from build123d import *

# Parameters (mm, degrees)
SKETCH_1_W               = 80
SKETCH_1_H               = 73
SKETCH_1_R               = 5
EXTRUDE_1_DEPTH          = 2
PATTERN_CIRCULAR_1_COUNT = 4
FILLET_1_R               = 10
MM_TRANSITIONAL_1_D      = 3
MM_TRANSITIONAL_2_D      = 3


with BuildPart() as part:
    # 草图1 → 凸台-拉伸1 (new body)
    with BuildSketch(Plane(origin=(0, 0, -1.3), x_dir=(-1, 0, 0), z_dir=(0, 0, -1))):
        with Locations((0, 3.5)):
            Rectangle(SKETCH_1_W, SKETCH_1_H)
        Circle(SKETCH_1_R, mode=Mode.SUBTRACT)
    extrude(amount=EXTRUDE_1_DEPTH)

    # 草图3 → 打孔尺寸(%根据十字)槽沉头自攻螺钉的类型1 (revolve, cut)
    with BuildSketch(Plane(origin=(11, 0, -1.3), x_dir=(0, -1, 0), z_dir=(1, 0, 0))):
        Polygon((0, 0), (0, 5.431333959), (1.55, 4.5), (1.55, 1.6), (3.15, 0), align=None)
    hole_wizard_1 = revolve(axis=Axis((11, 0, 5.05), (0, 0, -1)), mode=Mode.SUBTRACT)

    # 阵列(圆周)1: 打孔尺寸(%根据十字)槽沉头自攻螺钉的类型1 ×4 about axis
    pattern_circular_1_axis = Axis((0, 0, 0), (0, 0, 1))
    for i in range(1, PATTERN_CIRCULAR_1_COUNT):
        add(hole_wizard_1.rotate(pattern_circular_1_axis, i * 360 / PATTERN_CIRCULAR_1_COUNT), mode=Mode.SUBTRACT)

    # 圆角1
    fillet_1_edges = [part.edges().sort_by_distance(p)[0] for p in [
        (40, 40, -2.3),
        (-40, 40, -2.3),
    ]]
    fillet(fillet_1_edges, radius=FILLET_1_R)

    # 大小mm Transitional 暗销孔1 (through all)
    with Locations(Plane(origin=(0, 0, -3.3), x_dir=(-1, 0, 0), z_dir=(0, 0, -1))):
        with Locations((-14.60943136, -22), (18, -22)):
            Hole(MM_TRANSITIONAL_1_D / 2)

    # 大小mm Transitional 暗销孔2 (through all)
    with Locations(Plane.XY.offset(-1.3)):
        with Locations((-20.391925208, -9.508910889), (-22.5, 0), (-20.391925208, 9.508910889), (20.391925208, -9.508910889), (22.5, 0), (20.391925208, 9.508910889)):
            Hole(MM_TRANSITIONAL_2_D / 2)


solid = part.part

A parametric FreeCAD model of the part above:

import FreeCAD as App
import Part
import Sketcher

V = App.Vector
Q = App.Units.Quantity


def edges_at(feature, points):
    """Names of the edges that pass closest to the given points."""
    edges = feature.Shape.Edges
    near = lambda p: min(range(len(edges)), key=lambda i: edges[i].distToShape(Part.Vertex(*p))[0])
    return sorted({f"Edge{near(p) + 1}" for p in points})


def add_polygon(sketch, points):
    """Adds a closed chain of lines whose ends are joined by coincident constraints."""
    first, n = sketch.GeometryCount, len(points)
    for a, b in zip(points, points[1:] + points[:1]):
        sketch.addGeometry(Part.LineSegment(App.Vector(*a, 0), App.Vector(*b, 0)), False)
    for i in range(n):
        sketch.addConstraint(Sketcher.Constraint("Coincident", first + i, 2, first + (i + 1) % n, 1))

doc = App.newDocument("Part")
body = doc.addObject("PartDesign::Body", "Body")

sketch1 = body.newObject("Sketcher::SketchObject", "Sketch")
sketch1.AttachmentSupport = (doc.getObject("XY_Plane"), [""])
sketch1.MapMode = "FlatFace"
sketch1.AttachmentOffset = App.Placement(V(0, 0, -1.3), App.Rotation())
add_polygon(sketch1, [(40, 40), (40, -33), (-40, -33), (-40, 40)])
sketch1.addGeometry(Part.Circle(V(0, 0, 0), V(0, 0, 1), 5), False)
sketch1.addConstraint([
    Sketcher.Constraint("Vertical", 0),
    Sketcher.Constraint("Horizontal", 1),
    Sketcher.Constraint("Vertical", 2),
    Sketcher.Constraint("Horizontal", 3),
    Sketcher.Constraint("Coincident", 4, 3, -1, 1),
    Sketcher.Constraint("Diameter", 4, 10.0),
    Sketcher.Constraint("DistanceX", 1, 2, 1, 1, 80.0),
    Sketcher.Constraint("DistanceY", 0, 2, 0, 1, 73.0),
    Sketcher.Constraint("DistanceX", -1, 1, 0, 2, 40.0),
    Sketcher.Constraint("DistanceY", 0, 2, -1, 1, 33.0),
])
pad1 = body.newObject("PartDesign::Pad", "Pad")
pad1.Profile = sketch1
pad1.Length = 2
pad1.Reversed = True

sketch2 = body.newObject("Sketcher::SketchObject", "Sketch001")
sketch2.AttachmentSupport = (doc.getObject("YZ_Plane"), [""])
sketch2.MapMode = "FlatFace"
sketch2.AttachmentOffset = App.Placement(V(0, 0, 11), App.Rotation())
add_polygon(sketch2, [(0, -6.731334), (0, -1.3), (-3.15, -1.3), (-1.55, -2.9), (-1.55, -5.8)])
sketch2.addConstraint([
    Sketcher.Constraint("Vertical", 0),
    Sketcher.Constraint("Horizontal", 1),
    Sketcher.Constraint("Vertical", 3),
    Sketcher.Constraint("PointOnObject", 0, 2, -2),
    Sketcher.Constraint("Angle", 2, Q("-45 deg")),
    Sketcher.Constraint("Angle", 4, Q("-31 deg")),
    Sketcher.Constraint("DistanceY", 3, 2, 3, 1, 2.9),
    Sketcher.Constraint("DistanceX", 1, 2, 1, 1, 3.15),
    Sketcher.Constraint("DistanceY", 0, 2, -1, 1, 1.3),
    Sketcher.Constraint("DistanceY", 2, 2, -1, 1, 2.9),
])
groove = body.newObject("PartDesign::Groove", "Groove")
groove.Profile = sketch2
groove.ReferenceAxis = (sketch2, ["V_Axis"])
groove.Angle = 360
doc.recompute()

polarpattern = body.newObject("PartDesign::PolarPattern", "PolarPattern")
polarpattern.Originals = [groove]
polarpattern.Axis = (doc.getObject("Z_Axis"), [""])
polarpattern.Angle = 360
polarpattern.Occurrences = 4
body.Tip = polarpattern
doc.recompute()

fillet = body.newObject("PartDesign::Fillet", "Fillet")
fillet.Base = (polarpattern, edges_at(polarpattern, [(40, 40, -2.3), (-40, 40, -2.3)]))
fillet.Radius = 10

sketch3 = body.newObject("Sketcher::SketchObject", "Sketch002")
sketch3.AttachmentSupport = (doc.getObject("XY_Plane"), [""])
sketch3.MapMode = "FlatFace"
sketch3.AttachmentOffset = App.Placement(V(0, 0, -3.3), App.Rotation())
sketch3.addGeometry([
    Part.Circle(V(14.609431, -22, 0), V(0, 0, 1), 1.5),
    Part.Circle(V(-18, -22, 0), V(0, 0, 1), 1.5),
], False)
sketch3.addConstraint([
    Sketcher.Constraint("Equal", 0, 1),
    Sketcher.Constraint("Horizontal", 0, 3, 1, 3),
    Sketcher.Constraint("Diameter", 0, 3.0),
    Sketcher.Constraint("DistanceY", 0, 3, -1, 1, 22.0),
    Sketcher.Constraint("DistanceX", 1, 3, -1, 1, 18.0),
    Sketcher.Constraint("DistanceX", -1, 1, 0, 3, 14.609431),
])
doc.recompute()
hole = body.newObject("PartDesign::Hole", "Hole")
hole.Profile = sketch3
hole.ThreadType = "None"
hole.Diameter = 3
hole.DepthType = "ThroughAll"
hole.Reversed = True

sketch4 = body.newObject("Sketcher::SketchObject", "Sketch003")
sketch4.AttachmentSupport = (doc.getObject("XY_Plane"), [""])
sketch4.MapMode = "FlatFace"
sketch4.AttachmentOffset = App.Placement(V(0, 0, -1.3), App.Rotation())
sketch4.addGeometry([
    Part.Circle(V(-20.391925, -9.508911, 0), V(0, 0, 1), 1.5),
    Part.Circle(V(-22.5, 0, 0), V(0, 0, 1), 1.5),
    Part.Circle(V(-20.391925, 9.508911, 0), V(0, 0, 1), 1.5),
    Part.Circle(V(20.391925, -9.508911, 0), V(0, 0, 1), 1.5),
    Part.Circle(V(22.5, 0, 0), V(0, 0, 1), 1.5),
    Part.Circle(V(20.391925, 9.508911, 0), V(0, 0, 1), 1.5),
], False)
sketch4.addConstraint([
    Sketcher.Constraint("Equal", 0, 1),
    Sketcher.Constraint("Equal", 1, 2),
    Sketcher.Constraint("Equal", 2, 3),
    Sketcher.Constraint("Equal", 3, 4),
    Sketcher.Constraint("Equal", 4, 5),
    Sketcher.Constraint("Symmetric", 2, 3, 3, 3, -1, 1),
    Sketcher.Constraint("Symmetric", 1, 3, 4, 3, -1, 1),
    Sketcher.Constraint("Symmetric", 0, 3, 5, 3, -1, 1),
    Sketcher.Constraint("Symmetric", 0, 3, 3, 3, -2),
    Sketcher.Constraint("PointOnObject", 1, 3, -1),
    Sketcher.Constraint("Diameter", 0, 3.0),
    Sketcher.Constraint("DistanceX", 1, 3, 4, 3, 45.0),
    Sketcher.Constraint("DistanceY", 0, 3, -1, 1, 9.508911),
    Sketcher.Constraint("DistanceX", 0, 3, 3, 3, 40.78385),
])
doc.recompute()
hole2 = body.newObject("PartDesign::Hole", "Hole001")
hole2.Profile = sketch4
hole2.ThreadType = "None"
hole2.Diameter = 3
hole2.DepthType = "ThroughAll"

doc.recompute()
